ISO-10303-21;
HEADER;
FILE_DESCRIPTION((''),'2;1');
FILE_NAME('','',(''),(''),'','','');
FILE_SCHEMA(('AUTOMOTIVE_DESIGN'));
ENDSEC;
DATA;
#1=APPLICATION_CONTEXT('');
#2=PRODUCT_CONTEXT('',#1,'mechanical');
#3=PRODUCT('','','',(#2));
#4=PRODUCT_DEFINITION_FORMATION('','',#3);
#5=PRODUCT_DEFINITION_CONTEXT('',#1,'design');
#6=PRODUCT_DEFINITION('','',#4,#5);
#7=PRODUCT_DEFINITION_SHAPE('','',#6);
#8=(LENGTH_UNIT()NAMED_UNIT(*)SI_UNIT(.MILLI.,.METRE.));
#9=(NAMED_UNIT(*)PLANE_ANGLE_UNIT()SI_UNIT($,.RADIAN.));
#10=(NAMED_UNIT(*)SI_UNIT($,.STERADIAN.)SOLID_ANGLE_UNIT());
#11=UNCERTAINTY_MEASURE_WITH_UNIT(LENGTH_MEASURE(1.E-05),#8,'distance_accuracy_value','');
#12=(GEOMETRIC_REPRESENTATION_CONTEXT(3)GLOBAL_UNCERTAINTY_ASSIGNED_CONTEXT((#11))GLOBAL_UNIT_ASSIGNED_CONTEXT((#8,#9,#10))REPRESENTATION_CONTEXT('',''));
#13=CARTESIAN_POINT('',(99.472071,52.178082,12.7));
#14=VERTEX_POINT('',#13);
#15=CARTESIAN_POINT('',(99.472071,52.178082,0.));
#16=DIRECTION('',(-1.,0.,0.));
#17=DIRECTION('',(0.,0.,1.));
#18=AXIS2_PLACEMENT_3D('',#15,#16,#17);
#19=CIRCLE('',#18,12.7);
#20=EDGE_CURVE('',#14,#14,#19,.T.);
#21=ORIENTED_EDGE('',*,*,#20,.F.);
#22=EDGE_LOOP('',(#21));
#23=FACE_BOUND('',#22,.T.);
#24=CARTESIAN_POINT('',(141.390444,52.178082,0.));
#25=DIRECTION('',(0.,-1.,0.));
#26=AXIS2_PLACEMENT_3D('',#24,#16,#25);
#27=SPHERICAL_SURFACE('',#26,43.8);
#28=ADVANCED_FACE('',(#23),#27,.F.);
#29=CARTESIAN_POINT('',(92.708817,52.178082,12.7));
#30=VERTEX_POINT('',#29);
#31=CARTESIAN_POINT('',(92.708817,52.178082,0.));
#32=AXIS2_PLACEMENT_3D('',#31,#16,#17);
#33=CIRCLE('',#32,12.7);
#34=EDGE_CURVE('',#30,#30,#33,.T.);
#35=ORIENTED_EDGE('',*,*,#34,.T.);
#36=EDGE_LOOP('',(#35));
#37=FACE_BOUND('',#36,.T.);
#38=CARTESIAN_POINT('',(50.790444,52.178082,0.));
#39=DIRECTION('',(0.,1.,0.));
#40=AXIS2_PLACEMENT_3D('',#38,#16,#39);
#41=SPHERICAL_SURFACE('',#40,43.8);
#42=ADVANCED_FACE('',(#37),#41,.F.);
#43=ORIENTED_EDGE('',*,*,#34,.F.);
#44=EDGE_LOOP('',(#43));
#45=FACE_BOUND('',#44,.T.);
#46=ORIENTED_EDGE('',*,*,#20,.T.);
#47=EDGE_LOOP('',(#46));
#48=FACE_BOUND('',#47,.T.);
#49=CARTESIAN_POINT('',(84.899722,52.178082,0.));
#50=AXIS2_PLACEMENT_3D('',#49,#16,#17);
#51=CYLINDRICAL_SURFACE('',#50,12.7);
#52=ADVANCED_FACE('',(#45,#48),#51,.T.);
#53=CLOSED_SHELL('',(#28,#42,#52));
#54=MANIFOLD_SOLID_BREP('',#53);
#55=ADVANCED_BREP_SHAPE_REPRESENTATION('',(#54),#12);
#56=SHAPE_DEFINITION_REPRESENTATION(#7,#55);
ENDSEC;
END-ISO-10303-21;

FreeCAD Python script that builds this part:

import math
import FreeCAD as App
import Part
import Sketcher
from FreeCAD import Vector
Q = App.Units.Quantity

doc = App.newDocument("Part")
params = doc.addObject("Spreadsheet::Sheet", "Params")
for row, (alias, value) in enumerate([
    ("sketch1_radius", "43.8 mm"),
    ("sketch1_width", "3 mm"),
    ("revolution_angle", "360 deg"),
], start=1):
    params.set(f"A{row}", alias)
    params.set(f"B{row}", "=" + value)
    params.setAlias(f"B{row}", alias)

body = doc.addObject("PartDesign::Body", "Body")

# Sketch on XY plane
sketch1 = doc.addObject("Sketcher::SketchObject", "Sketch")
body.addObject(sketch1)
sketch1.AttachmentSupport = (doc.XY_Plane, [""])
sketch1.MapMode = "FlatFace"
sketch1.addGeometry(Part.LineSegment(Vector(94.590444, 52.178082, 0), Vector(97.590444, 52.178082, 0)), False)
sketch1.addGeometry(Part.ArcOfCircle(Part.Circle(Vector(141.390444, 52.178082, 0), Vector(0, 0, 1), 43.8), math.radians(163.144778), math.radians(180)), False)
sketch1.addGeometry(Part.LineSegment(Vector(99.472071, 64.878082, 0), Vector(92.708817, 64.878082, 0)), False)
sketch1.addGeometry(Part.ArcOfCircle(Part.Circle(Vector(50.790444, 52.178082, 0), Vector(0, 0, 1), 43.8), math.radians(0), math.radians(16.855222)), False)
sketch1.addGeometry(Part.LineSegment(Vector(50.790444, 52.178082, 0), Vector(141.390444, 52.178082, 0)), True)  # axis
sketch1.addConstraint(Sketcher.Constraint("Coincident", 0, 2, 1, 2))
sketch1.addConstraint(Sketcher.Constraint("Coincident", 1, 1, 2, 1))
sketch1.addConstraint(Sketcher.Constraint("Coincident", 2, 2, 3, 2))
sketch1.addConstraint(Sketcher.Constraint("Coincident", 3, 1, 0, 1))
sketch1.addConstraint(Sketcher.Constraint("Horizontal", 0))
sketch1.addConstraint(Sketcher.Constraint("Horizontal", 2))
sketch1.addConstraint(Sketcher.Constraint("Horizontal", 4))
sketch1.addConstraint(Sketcher.Constraint("Coincident", 4, 1, 3, 3))
sketch1.addConstraint(Sketcher.Constraint("Coincident", 4, 2, 1, 3))
sketch1.addConstraint(Sketcher.Constraint("Equal", 1, 3))
sketch1.addConstraint(Sketcher.Constraint("Horizontal", 3, 3, 0, 2))
sketch1.addConstraint(Sketcher.Constraint("Radius", 1, Q("43.8 mm")))
sketch1.addConstraint(Sketcher.Constraint("DistanceX", 0, 1, 0, 2, Q("3 mm")))
sketch1.addConstraint(Sketcher.Constraint("DistanceY", 0, 2, 1, 1, Q("12.7 mm")))
sketch1.addConstraint(Sketcher.Constraint("DistanceX", -1, 1, 1, 1, Q("99.472071 mm")))
sketch1.addConstraint(Sketcher.Constraint("DistanceY", -1, 1, 1, 3, Q("52.178082 mm")))
sketch1.setExpression("Constraints[11]", "Params.sketch1_radius")
sketch1.setExpression("Constraints[12]", "Params.sketch1_width")
revolution = doc.addObject("PartDesign::Revolution", "Revolution")
body.addObject(revolution)
revolution.Profile = sketch1
revolution.ReferenceAxis = (sketch1, ["Axis0"])
revolution.setExpression("Angle", "Params.revolution_angle")

doc.recompute()
